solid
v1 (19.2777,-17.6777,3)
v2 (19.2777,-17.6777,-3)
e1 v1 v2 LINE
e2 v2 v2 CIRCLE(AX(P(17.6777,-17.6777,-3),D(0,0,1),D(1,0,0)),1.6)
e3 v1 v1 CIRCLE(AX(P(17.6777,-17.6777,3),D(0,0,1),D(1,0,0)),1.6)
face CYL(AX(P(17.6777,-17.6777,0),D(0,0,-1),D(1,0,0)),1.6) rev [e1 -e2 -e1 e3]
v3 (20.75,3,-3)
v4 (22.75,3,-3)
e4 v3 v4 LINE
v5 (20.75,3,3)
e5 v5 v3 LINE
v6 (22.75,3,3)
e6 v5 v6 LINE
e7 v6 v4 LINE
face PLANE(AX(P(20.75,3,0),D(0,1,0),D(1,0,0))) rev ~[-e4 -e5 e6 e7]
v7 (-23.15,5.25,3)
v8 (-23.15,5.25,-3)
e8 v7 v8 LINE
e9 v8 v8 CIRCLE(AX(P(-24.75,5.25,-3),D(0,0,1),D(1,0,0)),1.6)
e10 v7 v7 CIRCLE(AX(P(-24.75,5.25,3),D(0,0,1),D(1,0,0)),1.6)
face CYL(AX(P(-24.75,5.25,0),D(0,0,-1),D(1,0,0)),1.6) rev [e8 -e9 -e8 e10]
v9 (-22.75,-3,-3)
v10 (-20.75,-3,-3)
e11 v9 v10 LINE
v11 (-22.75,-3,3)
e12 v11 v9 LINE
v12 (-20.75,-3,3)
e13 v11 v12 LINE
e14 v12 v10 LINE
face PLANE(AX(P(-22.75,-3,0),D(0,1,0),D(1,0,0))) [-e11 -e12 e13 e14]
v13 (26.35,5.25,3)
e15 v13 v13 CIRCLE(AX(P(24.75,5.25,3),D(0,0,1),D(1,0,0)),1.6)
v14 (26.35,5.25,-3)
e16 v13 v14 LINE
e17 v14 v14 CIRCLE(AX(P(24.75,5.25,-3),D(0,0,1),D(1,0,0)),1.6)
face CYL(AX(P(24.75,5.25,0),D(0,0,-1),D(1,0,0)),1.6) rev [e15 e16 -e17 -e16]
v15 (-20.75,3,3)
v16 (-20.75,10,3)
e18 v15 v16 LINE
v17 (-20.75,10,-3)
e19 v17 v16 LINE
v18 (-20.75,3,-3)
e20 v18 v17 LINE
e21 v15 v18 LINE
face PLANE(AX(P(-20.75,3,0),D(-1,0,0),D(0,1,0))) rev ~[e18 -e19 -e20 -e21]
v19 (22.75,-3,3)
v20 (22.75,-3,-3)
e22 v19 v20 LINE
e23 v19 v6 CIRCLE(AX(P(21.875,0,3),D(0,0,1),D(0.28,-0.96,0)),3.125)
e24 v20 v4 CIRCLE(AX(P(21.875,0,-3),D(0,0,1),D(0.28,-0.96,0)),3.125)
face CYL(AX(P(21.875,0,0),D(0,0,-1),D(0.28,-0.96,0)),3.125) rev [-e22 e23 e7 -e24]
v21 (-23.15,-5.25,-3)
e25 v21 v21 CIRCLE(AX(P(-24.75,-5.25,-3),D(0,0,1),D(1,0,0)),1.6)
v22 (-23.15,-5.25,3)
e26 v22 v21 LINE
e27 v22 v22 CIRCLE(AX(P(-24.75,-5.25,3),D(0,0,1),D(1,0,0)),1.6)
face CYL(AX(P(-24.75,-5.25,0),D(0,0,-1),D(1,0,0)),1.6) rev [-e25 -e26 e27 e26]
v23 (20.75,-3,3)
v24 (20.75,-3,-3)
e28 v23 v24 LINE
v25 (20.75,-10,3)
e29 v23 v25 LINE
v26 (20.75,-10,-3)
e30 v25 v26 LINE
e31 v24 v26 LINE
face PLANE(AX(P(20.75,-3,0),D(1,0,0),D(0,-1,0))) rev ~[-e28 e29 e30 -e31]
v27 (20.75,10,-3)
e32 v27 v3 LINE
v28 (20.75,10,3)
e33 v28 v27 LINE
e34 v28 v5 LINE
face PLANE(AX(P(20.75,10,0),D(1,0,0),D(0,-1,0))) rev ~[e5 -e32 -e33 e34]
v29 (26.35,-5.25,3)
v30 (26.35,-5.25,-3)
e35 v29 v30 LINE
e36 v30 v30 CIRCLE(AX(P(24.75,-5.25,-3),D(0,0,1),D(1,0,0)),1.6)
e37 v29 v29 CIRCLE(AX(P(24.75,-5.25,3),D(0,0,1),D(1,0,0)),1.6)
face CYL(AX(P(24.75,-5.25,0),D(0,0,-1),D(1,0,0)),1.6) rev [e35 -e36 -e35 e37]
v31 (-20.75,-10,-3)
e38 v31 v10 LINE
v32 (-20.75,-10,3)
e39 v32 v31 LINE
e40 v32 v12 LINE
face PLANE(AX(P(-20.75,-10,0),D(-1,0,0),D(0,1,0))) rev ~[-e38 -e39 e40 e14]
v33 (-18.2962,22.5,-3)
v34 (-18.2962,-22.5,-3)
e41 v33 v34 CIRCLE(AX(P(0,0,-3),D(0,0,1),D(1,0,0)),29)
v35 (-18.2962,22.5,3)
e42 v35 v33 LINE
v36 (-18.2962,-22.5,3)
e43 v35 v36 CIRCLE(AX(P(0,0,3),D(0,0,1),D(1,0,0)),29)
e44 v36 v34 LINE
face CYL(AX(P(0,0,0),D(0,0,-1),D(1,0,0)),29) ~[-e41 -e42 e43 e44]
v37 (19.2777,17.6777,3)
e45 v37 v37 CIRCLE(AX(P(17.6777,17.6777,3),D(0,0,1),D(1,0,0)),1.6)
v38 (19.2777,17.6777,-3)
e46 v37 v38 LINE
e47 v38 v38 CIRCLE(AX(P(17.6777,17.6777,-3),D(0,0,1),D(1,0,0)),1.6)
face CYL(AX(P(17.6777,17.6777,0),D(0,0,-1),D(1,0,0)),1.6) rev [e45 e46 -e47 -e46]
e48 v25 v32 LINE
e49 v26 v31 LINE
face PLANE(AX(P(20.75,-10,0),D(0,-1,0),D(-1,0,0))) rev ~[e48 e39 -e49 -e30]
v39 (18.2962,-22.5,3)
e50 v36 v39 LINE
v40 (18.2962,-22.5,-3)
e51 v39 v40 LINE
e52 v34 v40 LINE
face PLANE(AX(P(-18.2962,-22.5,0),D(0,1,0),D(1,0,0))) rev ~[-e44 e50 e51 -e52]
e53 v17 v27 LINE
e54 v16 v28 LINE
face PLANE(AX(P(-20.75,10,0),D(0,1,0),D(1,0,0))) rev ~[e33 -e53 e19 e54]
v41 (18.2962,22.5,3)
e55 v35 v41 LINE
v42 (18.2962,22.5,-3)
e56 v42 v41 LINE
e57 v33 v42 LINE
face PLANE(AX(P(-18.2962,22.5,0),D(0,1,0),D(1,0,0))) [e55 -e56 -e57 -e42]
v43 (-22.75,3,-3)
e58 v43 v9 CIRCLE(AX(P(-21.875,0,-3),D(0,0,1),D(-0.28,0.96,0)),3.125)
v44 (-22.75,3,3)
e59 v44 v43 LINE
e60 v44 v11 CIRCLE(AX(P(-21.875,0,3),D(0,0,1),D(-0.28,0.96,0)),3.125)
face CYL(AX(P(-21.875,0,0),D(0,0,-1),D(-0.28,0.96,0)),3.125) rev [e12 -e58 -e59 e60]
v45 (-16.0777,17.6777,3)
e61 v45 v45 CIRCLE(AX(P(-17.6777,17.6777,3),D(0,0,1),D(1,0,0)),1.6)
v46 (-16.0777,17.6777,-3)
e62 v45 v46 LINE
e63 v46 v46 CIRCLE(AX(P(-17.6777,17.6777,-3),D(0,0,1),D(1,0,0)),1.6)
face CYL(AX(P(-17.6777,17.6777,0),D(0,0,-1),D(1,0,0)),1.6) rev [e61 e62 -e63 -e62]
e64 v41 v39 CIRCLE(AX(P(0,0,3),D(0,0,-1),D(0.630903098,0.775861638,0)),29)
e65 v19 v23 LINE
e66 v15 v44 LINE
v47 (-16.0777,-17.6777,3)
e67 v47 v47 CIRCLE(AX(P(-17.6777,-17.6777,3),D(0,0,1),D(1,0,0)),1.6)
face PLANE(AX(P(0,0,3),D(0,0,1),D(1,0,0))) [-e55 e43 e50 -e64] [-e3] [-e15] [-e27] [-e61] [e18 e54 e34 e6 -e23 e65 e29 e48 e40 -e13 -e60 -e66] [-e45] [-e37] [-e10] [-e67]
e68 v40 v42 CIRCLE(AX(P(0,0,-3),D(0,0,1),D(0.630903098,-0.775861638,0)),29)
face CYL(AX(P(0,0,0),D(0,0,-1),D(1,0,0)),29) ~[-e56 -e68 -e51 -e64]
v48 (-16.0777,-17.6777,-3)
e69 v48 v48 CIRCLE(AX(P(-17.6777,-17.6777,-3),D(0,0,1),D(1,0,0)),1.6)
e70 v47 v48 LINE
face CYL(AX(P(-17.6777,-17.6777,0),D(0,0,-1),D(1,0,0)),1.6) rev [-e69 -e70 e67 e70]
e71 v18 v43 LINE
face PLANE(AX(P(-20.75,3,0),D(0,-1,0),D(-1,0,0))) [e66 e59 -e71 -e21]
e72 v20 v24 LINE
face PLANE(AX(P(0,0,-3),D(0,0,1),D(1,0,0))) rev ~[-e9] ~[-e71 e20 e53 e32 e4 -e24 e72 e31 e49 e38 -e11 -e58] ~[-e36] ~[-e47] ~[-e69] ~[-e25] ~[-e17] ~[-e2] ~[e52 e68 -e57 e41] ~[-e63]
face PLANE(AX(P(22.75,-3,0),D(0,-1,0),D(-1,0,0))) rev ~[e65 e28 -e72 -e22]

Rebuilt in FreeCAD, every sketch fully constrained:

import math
import FreeCAD as App
import Part
import Sketcher
from FreeCAD import Vector
Q = App.Units.Quantity

doc = App.newDocument("Part")
body = doc.addObject("PartDesign::Body", "Body")

sketch1 = body.newObject("Sketcher::SketchObject", "Sketch")
sketch1.AttachmentSupport = (doc.getObject("XY_Plane"), [""])
sketch1.MapMode = "FlatFace"
sketch1.addGeometry([
    Part.ArcOfCircle(Part.Circle(Vector(0, 0, 0), Vector(0, 0, 1), 29), math.radians(-51), math.radians(51)),
    Part.LineSegment(Vector(18.3, 22.5, 0), Vector(-18.3, 22.5, 0)),
    Part.ArcOfCircle(Part.Circle(Vector(0, 0, 0), Vector(0, 0, 1), 29), math.radians(129), math.radians(231)),
    Part.LineSegment(Vector(-18.3, -22.5, 0), Vector(18.3, -22.5, 0)),
    Part.Circle(Vector(-17.7, -17.7, 0), Vector(0, 0, 1), 1.6),
    Part.Circle(Vector(-24.8, -5.2, 0), Vector(0, 0, 1), 1.6),
    Part.Circle(Vector(17.7, -17.7, 0), Vector(0, 0, 1), 1.6),
    Part.Circle(Vector(24.8, -5.2, 0), Vector(0, 0, 1), 1.6),
    Part.Circle(Vector(-24.8, 5.2, 0), Vector(0, 0, 1), 1.6),
    Part.Circle(Vector(-17.7, 17.7, 0), Vector(0, 0, 1), 1.6),
    Part.LineSegment(Vector(-20.8, 3, 0), Vector(-20.8, 10, 0)),
    Part.LineSegment(Vector(-20.8, 10, 0), Vector(20.8, 10, 0)),
    Part.LineSegment(Vector(20.8, 10, 0), Vector(20.8, 3, 0)),
    Part.LineSegment(Vector(20.8, 3, 0), Vector(22.8, 3, 0)),
    Part.ArcOfCircle(Part.Circle(Vector(21.9, 0, 0), Vector(0, 0, 1), 3.1), math.radians(-74), math.radians(74)),
    Part.LineSegment(Vector(22.8, -3, 0), Vector(20.8, -3, 0)),
    Part.LineSegment(Vector(20.8, -3, 0), Vector(20.8, -10, 0)),
    Part.LineSegment(Vector(20.8, -10, 0), Vector(-20.8, -10, 0)),
    Part.LineSegment(Vector(-20.8, -10, 0), Vector(-20.8, -3, 0)),
    Part.LineSegment(Vector(-20.8, -3, 0), Vector(-22.8, -3, 0)),
    Part.ArcOfCircle(Part.Circle(Vector(-21.9, 0, 0), Vector(0, 0, 1), 3.1), math.radians(106), math.radians(254)),
    Part.LineSegment(Vector(-22.8, 3, 0), Vector(-20.8, 3, 0)),
    Part.Circle(Vector(24.8, 5.2, 0), Vector(0, 0, 1), 1.6),
    Part.Circle(Vector(17.7, 17.7, 0), Vector(0, 0, 1), 1.6),
], False)
sketch1.addConstraint([
    Sketcher.Constraint("Coincident", 0, 2, 1, 1),
    Sketcher.Constraint("Coincident", 1, 2, 2, 1),
    Sketcher.Constraint("Coincident", 2, 2, 3, 1),
    Sketcher.Constraint("Coincident", 3, 2, 0, 1),
    Sketcher.Constraint("Coincident", 10, 2, 11, 1),
    Sketcher.Constraint("Coincident", 11, 2, 12, 1),
    Sketcher.Constraint("Coincident", 12, 2, 13, 1),
    Sketcher.Constraint("Coincident", 13, 2, 14, 2),
    Sketcher.Constraint("Coincident", 14, 1, 15, 1),
    Sketcher.Constraint("Coincident", 15, 2, 16, 1),
    Sketcher.Constraint("Coincident", 16, 2, 17, 1),
    Sketcher.Constraint("Coincident", 17, 2, 18, 1),
    Sketcher.Constraint("Coincident", 18, 2, 19, 1),
    Sketcher.Constraint("Coincident", 19, 2, 20, 2),
    Sketcher.Constraint("Coincident", 20, 1, 21, 1),
    Sketcher.Constraint("Coincident", 21, 2, 10, 1),
    Sketcher.Constraint("Horizontal", 1),
    Sketcher.Constraint("Horizontal", 3),
    Sketcher.Constraint("Vertical", 10),
    Sketcher.Constraint("Horizontal", 11),
    Sketcher.Constraint("Vertical", 12),
    Sketcher.Constraint("Horizontal", 13),
    Sketcher.Constraint("Horizontal", 15),
    Sketcher.Constraint("Vertical", 16),
    Sketcher.Constraint("Horizontal", 17),
    Sketcher.Constraint("Vertical", 18),
    Sketcher.Constraint("Horizontal", 19),
    Sketcher.Constraint("Horizontal", 21),
    Sketcher.Constraint("Coincident", 0, 3, -1, 1),
    Sketcher.Constraint("Coincident", 2, 3, -1, 1),
    Sketcher.Constraint("Equal", 0, 2),
    Sketcher.Constraint("Equal", 4, 5),
    Sketcher.Constraint("Equal", 5, 6),
    Sketcher.Constraint("Equal", 6, 7),
    Sketcher.Constraint("Equal", 7, 8),
    Sketcher.Constraint("Equal", 8, 9),
    Sketcher.Constraint("Equal", 14, 20),
    Sketcher.Constraint("Equal", 9, 22),
    Sketcher.Constraint("Equal", 22, 23),
    Sketcher.Constraint("Symmetric", 7, 3, 8, 3, -1, 1),
    Sketcher.Constraint("Symmetric", 6, 3, 9, 3, -1, 1),
    Sketcher.Constraint("Symmetric", 14, 3, 20, 3, -1, 1),
    Sketcher.Constraint("Symmetric", 5, 3, 22, 3, -1, 1),
    Sketcher.Constraint("Symmetric", 4, 3, 23, 3, -1, 1),
    Sketcher.Constraint("Symmetric", 10, 2, 16, 2, -1, 1),
    Sketcher.Constraint("Symmetric", 12, 2, 18, 2, -1, 1),
    Sketcher.Constraint("Symmetric", 4, 3, 6, 3, -2),
    Sketcher.Constraint("Symmetric", 5, 3, 7, 3, -2),
    Sketcher.Constraint("Symmetric", 15, 2, 18, 2, -2),
    Sketcher.Constraint("Symmetric", 13, 2, 20, 1, -2),
    Sketcher.Constraint("Vertical", 1, 2, 2, 2),
    Sketcher.Constraint("Radius", 0, Q("29 mm")),
    Sketcher.Constraint("Diameter", 4, Q("3.2 mm")),
    Sketcher.Constraint("DistanceX", 13, 1, 13, 2, Q("2 mm")),
    Sketcher.Constraint("DistanceX", 11, 1, 11, 2, Q("41.5 mm")),
    Sketcher.Constraint("DistanceX", 8, 3, 10, 2, Q("4 mm")),
    Sketcher.Constraint("DistanceY", 14, 1, 13, 2, Q("6 mm")),
    Sketcher.Constraint("DistanceY", 10, 1, 10, 2, Q("7 mm")),
    Sketcher.Constraint("DistanceY", 8, 3, 10, 2, Q("4.75 mm")),
    Sketcher.Constraint("Radius", 14, Q("3.125 mm")),
    Sketcher.Constraint("DistanceY", -1, 1, 0, 2, Q("22.5 mm")),
    Sketcher.Constraint("DistanceX", 4, 3, -1, 1, Q("17.6777 mm")),
    Sketcher.Constraint("DistanceY", 4, 3, -1, 1, Q("17.6777 mm")),
])
pad1 = body.newObject("PartDesign::Pad", "Pad")
pad1.Profile = sketch1
pad1.Length = 6
pad1.Midplane = True

doc.recompute()
